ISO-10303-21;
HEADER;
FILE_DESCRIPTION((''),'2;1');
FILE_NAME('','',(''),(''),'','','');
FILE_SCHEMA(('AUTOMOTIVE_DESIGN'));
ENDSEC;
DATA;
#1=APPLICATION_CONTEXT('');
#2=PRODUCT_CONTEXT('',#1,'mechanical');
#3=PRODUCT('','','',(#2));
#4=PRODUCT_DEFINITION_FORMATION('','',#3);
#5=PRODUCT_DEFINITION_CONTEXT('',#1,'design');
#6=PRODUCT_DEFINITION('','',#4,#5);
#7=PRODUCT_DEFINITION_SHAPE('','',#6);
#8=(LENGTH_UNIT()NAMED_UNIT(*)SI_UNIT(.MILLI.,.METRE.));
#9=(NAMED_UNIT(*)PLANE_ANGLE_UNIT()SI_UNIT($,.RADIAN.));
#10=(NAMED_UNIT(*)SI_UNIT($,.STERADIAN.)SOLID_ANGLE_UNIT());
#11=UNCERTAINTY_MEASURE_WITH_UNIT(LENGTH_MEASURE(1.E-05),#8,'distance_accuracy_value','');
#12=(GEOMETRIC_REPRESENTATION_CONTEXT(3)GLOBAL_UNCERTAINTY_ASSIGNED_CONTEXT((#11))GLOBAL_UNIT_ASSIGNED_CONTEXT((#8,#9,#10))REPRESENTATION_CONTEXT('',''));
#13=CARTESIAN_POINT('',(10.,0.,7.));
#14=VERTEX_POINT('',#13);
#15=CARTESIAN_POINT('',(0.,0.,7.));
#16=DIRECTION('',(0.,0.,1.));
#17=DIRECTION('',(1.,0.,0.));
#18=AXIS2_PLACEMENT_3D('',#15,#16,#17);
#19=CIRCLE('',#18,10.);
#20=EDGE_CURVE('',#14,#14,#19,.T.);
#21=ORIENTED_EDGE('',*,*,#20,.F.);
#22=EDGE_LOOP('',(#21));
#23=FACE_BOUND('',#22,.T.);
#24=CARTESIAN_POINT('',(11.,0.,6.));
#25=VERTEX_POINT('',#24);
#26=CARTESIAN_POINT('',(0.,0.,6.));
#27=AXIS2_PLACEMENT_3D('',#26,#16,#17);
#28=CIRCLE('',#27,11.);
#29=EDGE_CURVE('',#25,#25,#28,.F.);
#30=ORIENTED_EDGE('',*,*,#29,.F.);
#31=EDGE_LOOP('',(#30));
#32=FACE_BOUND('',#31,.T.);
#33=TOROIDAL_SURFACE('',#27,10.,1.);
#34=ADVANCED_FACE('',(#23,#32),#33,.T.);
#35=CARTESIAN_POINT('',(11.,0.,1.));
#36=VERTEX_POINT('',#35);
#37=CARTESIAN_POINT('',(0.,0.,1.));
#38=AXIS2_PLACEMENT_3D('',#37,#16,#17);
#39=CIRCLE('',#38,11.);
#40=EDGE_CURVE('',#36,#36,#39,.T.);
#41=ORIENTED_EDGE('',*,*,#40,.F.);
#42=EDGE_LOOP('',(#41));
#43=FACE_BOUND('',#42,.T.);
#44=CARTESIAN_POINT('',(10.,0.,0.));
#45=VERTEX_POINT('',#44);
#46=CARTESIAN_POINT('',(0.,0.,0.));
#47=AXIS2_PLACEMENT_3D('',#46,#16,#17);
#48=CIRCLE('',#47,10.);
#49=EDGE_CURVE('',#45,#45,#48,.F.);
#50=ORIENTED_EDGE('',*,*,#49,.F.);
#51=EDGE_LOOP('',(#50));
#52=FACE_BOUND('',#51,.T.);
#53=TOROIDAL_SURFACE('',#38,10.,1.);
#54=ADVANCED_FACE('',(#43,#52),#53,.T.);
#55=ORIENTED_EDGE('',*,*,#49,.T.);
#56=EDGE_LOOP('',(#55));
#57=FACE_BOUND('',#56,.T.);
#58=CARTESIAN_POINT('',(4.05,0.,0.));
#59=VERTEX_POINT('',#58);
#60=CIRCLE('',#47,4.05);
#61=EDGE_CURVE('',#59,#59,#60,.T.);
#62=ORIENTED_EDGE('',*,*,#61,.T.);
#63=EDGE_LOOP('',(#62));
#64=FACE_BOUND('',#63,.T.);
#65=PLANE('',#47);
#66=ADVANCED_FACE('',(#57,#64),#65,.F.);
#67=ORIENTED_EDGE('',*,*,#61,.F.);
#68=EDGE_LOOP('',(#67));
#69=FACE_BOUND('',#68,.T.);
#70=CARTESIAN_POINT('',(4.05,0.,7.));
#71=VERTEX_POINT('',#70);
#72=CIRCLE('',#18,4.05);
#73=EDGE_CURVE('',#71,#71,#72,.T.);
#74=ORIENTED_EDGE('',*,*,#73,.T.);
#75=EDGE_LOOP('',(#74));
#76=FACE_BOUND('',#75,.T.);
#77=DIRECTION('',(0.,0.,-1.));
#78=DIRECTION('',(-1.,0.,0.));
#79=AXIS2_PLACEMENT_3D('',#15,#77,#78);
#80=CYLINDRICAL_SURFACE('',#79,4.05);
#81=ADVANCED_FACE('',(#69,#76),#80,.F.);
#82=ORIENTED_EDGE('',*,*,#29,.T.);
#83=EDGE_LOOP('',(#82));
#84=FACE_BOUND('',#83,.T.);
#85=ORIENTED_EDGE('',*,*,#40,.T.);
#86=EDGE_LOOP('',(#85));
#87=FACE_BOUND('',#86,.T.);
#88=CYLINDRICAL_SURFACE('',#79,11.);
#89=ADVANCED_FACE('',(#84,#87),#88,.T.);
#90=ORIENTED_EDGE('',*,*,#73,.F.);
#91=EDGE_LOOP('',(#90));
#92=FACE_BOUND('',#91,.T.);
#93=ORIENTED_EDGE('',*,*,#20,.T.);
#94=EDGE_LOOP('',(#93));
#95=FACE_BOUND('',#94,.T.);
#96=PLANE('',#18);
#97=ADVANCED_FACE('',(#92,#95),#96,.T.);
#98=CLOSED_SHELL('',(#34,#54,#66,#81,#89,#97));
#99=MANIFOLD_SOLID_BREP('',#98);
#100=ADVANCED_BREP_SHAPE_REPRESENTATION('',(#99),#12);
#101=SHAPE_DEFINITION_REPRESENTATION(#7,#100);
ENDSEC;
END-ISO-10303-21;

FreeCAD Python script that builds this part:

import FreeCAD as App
import Part
import Sketcher


def edges_at(feature, points):
    """Names of the edges that pass closest to the given points."""
    edges = feature.Shape.Edges
    near = lambda p: min(range(len(edges)), key=lambda i: edges[i].distToShape(Part.Vertex(*p))[0])
    return sorted({f"Edge{near(p) + 1}" for p in points})

doc = App.newDocument("Part")
body = doc.addObject("PartDesign::Body", "Body")

# Sketch on XY plane
sketch1 = body.newObject("Sketcher::SketchObject", "Sketch")
sketch1.AttachmentSupport = (doc.getObject("XY_Plane"), [""])
sketch1.MapMode = "FlatFace"
sketch1.addGeometry(Part.Circle(App.Vector(0, 0, 0), App.Vector(0, 0, 1), 11), False)
sketch1.addGeometry(Part.Circle(App.Vector(0, 0, 0), App.Vector(0, 0, 1), 4.05), False)
sketch1.addConstraint(Sketcher.Constraint("Coincident", 0, 3, -1, 1))
sketch1.addConstraint(Sketcher.Constraint("Coincident", 1, 3, -1, 1))
sketch1.addConstraint(Sketcher.Constraint("Diameter", 0, 22.0))
sketch1.addConstraint(Sketcher.Constraint("Diameter", 1, 8.1))
pad1 = body.newObject("PartDesign::Pad", "Pad")
pad1.Profile = sketch1
pad1.Length = 7
doc.recompute()

fillet = body.newObject("PartDesign::Fillet", "Fillet")
fillet.Base = (pad1, edges_at(pad1, [(-11, 0, 0), (-11, 0, 7)]))
fillet.Radius = 1

doc.recompute()
